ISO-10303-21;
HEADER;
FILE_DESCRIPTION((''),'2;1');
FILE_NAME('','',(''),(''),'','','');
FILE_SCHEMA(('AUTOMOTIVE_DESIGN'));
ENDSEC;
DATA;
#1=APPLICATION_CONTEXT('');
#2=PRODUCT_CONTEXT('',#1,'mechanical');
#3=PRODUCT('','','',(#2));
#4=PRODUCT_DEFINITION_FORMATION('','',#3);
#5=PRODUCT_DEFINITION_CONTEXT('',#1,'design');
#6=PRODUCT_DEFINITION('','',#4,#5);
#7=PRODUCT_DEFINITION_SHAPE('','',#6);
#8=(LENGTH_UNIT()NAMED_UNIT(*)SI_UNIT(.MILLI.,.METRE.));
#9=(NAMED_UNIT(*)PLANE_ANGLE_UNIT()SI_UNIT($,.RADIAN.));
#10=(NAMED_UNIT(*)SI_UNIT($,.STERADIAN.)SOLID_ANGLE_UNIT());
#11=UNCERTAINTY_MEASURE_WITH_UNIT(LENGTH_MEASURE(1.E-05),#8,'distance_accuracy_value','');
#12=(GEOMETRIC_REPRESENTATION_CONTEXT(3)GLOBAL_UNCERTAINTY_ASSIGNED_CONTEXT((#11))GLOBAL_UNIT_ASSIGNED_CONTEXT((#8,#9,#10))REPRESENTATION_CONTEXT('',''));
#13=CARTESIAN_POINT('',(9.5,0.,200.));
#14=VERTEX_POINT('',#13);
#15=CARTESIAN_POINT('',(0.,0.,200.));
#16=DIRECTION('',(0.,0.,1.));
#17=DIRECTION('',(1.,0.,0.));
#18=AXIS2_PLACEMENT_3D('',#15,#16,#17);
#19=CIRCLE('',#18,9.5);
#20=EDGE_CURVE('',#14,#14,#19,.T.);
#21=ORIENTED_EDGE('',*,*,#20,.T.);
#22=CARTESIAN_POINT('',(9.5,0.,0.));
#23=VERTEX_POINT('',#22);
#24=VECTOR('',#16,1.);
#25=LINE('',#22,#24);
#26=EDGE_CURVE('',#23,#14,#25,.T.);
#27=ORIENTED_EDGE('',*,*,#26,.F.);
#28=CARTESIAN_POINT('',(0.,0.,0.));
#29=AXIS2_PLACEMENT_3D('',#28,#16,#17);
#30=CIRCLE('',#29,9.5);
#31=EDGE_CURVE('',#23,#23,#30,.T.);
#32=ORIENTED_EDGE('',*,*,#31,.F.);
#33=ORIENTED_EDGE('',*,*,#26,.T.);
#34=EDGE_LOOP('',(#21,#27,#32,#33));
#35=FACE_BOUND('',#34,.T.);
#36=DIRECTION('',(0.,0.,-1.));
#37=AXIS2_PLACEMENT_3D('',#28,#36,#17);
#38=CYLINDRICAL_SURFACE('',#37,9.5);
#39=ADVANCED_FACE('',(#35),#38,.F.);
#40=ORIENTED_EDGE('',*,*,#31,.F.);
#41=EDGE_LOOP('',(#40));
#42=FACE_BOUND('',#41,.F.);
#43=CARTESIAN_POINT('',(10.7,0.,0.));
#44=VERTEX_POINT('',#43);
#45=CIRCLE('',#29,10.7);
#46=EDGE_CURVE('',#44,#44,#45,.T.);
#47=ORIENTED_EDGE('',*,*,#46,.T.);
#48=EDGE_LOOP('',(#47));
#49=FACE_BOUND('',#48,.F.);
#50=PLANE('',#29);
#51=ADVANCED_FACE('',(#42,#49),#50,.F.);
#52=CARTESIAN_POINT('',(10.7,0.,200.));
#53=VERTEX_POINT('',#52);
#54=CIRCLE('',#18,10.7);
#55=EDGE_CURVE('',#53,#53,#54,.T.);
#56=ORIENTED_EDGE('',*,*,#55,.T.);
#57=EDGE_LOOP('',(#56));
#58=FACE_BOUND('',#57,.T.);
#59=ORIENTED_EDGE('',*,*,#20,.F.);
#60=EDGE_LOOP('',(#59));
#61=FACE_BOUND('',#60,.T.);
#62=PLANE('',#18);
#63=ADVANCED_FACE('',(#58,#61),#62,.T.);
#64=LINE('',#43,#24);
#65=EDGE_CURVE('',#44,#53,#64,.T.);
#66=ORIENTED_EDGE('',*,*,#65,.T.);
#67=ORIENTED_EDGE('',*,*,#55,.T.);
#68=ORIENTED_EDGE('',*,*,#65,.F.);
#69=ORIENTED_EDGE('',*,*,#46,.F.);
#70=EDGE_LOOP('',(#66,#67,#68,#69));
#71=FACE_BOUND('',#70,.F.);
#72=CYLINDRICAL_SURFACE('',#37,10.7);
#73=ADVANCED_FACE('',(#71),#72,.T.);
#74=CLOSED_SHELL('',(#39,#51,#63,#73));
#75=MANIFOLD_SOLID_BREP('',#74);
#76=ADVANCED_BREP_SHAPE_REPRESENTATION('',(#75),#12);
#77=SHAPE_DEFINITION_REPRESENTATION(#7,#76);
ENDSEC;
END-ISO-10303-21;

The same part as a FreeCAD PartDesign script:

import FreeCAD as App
import Part
import Sketcher
from FreeCAD import Vector
Q = App.Units.Quantity

doc = App.newDocument("Part")
params = doc.addObject("Spreadsheet::Sheet", "Params")
for row, (alias, value) in enumerate([
    ("sketch1_diameter", "19 mm"),
    ("sketch1_diameter2", "21.4 mm"),
    ("pad1_length", "200 mm"),
], start=1):
    params.set(f"A{row}", alias)
    params.set(f"B{row}", "=" + value)
    params.setAlias(f"B{row}", alias)

body = doc.addObject("PartDesign::Body", "Body")

# Sketch on XY plane
sketch1 = body.newObject("Sketcher::SketchObject", "Sketch")
sketch1.AttachmentSupport = (doc.getObject("XY_Plane"), [""])
sketch1.MapMode = "FlatFace"
sketch1.addGeometry(Part.Circle(Vector(0, 0, 0), Vector(0, 0, 1), 10.7), False)
sketch1.addGeometry(Part.Circle(Vector(0, 0, 0), Vector(0, 0, 1), 9.5), False)
sketch1.addConstraint(Sketcher.Constraint("Coincident", 0, 3, -1, 1))
sketch1.addConstraint(Sketcher.Constraint("Coincident", 1, 3, -1, 1))
sketch1.addConstraint(Sketcher.Constraint("Diameter", 1, Q("19 mm")))
sketch1.addConstraint(Sketcher.Constraint("Diameter", 0, Q("21.4 mm")))
sketch1.setExpression("Constraints[2]", "Params.sketch1_diameter")
sketch1.setExpression("Constraints[3]", "Params.sketch1_diameter2")
pad1 = body.newObject("PartDesign::Pad", "Pad")
pad1.Profile = sketch1
pad1.setExpression("Length", "Params.pad1_length")

doc.recompute()
